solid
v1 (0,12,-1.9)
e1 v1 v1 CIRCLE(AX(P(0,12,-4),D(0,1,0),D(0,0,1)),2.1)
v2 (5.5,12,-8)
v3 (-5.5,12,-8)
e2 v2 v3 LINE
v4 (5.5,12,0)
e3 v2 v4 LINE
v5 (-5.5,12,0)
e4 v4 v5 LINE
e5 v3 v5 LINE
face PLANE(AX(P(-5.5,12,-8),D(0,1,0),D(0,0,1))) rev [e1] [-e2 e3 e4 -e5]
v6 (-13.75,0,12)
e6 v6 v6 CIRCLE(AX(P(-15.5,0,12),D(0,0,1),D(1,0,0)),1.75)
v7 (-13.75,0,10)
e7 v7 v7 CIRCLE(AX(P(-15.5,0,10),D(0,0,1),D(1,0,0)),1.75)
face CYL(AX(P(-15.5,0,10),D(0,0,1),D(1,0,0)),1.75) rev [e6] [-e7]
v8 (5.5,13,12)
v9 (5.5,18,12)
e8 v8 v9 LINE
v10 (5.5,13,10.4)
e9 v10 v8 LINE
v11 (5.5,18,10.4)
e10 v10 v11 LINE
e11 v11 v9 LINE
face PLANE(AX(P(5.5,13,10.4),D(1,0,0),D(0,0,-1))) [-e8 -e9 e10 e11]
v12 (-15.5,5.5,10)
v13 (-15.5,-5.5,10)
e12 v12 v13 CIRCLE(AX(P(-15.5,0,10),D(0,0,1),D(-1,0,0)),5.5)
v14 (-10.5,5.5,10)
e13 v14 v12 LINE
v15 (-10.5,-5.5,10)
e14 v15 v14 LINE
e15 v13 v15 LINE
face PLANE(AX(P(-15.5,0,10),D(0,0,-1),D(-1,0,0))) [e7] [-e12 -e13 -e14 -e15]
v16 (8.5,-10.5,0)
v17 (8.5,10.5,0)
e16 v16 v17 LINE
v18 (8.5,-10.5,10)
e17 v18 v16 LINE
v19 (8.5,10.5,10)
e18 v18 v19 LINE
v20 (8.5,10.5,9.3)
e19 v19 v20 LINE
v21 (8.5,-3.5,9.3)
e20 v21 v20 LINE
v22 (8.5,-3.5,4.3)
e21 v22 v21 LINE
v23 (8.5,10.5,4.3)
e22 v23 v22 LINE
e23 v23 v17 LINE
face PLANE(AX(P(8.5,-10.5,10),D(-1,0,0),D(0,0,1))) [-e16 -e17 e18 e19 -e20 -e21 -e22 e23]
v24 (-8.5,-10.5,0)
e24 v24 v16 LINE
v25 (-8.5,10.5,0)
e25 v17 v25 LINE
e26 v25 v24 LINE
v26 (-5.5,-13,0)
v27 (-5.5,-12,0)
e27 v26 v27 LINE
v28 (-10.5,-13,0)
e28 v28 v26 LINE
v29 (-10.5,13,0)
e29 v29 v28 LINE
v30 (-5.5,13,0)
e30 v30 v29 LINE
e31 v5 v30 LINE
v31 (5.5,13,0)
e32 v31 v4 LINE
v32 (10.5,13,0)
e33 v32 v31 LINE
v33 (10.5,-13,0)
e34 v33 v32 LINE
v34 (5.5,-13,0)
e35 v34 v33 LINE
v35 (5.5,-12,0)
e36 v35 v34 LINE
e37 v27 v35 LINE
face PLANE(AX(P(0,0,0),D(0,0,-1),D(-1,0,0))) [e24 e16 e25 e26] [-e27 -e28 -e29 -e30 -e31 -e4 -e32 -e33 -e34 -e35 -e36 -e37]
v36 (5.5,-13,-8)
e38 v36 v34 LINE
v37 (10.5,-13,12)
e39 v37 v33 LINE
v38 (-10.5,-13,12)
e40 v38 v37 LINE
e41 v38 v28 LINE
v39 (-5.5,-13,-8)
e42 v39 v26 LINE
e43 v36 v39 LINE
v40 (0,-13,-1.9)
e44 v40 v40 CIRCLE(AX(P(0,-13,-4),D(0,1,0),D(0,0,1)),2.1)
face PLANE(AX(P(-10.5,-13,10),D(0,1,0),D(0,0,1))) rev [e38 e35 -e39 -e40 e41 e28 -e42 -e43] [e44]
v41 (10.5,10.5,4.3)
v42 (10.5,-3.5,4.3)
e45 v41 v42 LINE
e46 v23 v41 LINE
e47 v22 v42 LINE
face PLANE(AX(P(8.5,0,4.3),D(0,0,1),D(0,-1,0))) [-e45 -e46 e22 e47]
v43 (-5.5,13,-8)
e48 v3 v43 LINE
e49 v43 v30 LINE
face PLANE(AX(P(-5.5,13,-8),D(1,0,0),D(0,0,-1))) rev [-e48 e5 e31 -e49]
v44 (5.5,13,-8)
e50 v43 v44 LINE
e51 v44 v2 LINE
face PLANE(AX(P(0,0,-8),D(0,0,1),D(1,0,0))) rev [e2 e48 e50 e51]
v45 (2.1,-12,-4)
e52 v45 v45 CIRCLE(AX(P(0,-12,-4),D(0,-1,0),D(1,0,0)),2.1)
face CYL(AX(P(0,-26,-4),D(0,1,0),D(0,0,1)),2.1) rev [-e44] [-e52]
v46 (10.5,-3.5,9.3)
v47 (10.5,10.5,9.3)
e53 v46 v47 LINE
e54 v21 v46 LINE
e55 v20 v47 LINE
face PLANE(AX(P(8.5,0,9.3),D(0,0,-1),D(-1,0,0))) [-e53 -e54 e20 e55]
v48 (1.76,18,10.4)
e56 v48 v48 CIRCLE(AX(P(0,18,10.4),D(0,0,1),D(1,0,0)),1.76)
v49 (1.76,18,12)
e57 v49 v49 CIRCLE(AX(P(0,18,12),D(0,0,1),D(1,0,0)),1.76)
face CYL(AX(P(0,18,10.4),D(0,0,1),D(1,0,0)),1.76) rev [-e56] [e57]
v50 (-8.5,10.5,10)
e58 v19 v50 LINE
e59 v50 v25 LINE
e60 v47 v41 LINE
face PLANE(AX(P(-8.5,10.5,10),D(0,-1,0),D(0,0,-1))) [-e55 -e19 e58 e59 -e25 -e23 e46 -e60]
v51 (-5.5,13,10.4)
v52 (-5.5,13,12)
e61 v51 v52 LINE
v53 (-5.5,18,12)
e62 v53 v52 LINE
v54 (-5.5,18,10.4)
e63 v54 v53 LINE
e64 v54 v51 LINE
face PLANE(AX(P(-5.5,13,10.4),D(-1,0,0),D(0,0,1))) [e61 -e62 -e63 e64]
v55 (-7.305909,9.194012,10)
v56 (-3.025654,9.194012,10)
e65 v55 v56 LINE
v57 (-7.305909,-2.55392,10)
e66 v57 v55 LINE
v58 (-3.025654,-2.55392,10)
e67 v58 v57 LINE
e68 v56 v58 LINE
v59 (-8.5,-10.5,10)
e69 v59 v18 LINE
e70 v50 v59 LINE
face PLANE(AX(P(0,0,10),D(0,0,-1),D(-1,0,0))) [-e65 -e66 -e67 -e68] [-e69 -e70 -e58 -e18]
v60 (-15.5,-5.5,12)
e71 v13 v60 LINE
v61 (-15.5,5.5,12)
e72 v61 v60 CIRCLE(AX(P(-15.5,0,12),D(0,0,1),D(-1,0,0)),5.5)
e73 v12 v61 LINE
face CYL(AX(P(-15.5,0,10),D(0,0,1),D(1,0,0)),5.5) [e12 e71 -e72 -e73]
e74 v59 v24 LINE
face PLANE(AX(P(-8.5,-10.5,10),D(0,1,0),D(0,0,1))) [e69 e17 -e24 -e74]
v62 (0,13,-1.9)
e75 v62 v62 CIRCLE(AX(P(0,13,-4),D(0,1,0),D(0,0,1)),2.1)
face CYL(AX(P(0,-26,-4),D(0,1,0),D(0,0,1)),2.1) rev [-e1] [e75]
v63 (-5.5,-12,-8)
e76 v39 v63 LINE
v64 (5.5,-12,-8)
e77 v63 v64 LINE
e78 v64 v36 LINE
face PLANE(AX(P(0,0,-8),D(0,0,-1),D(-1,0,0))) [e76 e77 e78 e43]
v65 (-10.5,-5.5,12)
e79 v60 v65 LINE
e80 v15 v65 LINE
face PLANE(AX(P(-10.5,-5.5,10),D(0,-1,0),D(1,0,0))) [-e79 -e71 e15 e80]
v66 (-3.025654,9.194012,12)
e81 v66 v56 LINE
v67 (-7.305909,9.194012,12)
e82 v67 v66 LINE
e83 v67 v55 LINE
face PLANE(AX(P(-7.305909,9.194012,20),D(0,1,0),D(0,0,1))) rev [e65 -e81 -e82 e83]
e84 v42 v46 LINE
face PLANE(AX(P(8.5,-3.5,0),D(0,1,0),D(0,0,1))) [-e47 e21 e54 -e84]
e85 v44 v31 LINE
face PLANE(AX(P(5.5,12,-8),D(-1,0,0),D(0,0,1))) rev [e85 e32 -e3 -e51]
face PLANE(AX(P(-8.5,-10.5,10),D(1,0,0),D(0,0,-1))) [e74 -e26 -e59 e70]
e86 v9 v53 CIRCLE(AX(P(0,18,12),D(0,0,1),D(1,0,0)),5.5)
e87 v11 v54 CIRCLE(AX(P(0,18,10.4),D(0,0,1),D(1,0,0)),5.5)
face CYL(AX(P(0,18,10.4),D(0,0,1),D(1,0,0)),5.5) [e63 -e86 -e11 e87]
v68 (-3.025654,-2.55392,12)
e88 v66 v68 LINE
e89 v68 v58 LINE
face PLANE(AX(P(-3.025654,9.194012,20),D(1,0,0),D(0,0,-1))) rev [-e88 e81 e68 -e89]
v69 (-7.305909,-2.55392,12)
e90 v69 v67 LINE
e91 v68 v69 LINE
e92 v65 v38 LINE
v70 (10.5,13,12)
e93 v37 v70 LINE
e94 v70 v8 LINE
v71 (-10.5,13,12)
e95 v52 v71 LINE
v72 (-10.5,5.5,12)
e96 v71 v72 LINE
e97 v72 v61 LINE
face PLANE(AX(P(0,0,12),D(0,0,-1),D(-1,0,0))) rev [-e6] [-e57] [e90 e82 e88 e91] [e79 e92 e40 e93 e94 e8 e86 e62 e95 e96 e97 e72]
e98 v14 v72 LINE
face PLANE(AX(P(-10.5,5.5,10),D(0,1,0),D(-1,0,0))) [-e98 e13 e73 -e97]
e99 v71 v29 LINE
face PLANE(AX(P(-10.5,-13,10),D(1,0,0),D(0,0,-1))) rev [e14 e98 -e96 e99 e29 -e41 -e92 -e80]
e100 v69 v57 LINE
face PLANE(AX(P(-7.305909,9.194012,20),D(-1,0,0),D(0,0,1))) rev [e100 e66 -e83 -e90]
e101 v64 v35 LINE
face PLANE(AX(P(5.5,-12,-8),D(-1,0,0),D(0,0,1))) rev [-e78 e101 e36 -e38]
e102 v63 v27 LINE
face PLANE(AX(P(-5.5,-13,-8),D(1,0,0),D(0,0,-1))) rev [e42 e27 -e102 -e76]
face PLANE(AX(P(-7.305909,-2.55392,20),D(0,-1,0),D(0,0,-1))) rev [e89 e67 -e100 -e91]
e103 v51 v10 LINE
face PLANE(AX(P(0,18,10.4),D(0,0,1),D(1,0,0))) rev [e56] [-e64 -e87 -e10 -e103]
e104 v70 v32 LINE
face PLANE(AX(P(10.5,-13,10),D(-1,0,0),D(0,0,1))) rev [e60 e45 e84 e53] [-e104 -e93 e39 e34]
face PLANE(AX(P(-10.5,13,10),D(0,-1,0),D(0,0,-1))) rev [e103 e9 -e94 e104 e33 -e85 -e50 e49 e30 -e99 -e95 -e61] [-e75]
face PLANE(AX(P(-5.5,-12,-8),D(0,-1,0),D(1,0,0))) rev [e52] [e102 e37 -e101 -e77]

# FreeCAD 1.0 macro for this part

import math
import FreeCAD as App
import Part
import Sketcher

V = App.Vector
Q = App.Units.Quantity


def add_polygon(sketch, points):
    """Adds a closed chain of lines whose ends are joined by coincident constraints."""
    first, n = sketch.GeometryCount, len(points)
    for a, b in zip(points, points[1:] + points[:1]):
        sketch.addGeometry(Part.LineSegment(App.Vector(*a, 0), App.Vector(*b, 0)), False)
    for i in range(n):
        sketch.addConstraint(Sketcher.Constraint("Coincident", first + i, 2, first + (i + 1) % n, 1))

doc = App.newDocument("Part")
body = doc.addObject("PartDesign::Body", "Body")

# Sketch on XY plane
sketch1 = body.newObject("Sketcher::SketchObject", "Sketch")
sketch1.AttachmentSupport = (doc.getObject("XY_Plane"), [""])
sketch1.MapMode = "FlatFace"
add_polygon(sketch1, [(-10, 13), (-10, -13), (10, -13), (10, 13)])  # lines 0-3
add_polygon(sketch1, [(8, -10), (-8, -10), (-8, 10), (8, 10)])  # lines 4-7
sketch1.addConstraint([
    Sketcher.Constraint("Vertical", 0),
    Sketcher.Constraint("Horizontal", 1),
    Sketcher.Constraint("Vertical", 2),
    Sketcher.Constraint("Horizontal", 3),
    Sketcher.Constraint("Horizontal", 4),
    Sketcher.Constraint("Vertical", 5),
    Sketcher.Constraint("Horizontal", 6),
    Sketcher.Constraint("Vertical", 7),
    Sketcher.Constraint("Symmetric", 0, 2, 2, 2, -1, 1),
    Sketcher.Constraint("Symmetric", 4, 2, 6, 2, -1, 1),
    Sketcher.Constraint("Equal", 3, 5),
    Sketcher.Constraint("DistanceX", 1, 1, 1, 2, Q("21 mm")),
    Sketcher.Constraint("DistanceX", 4, 2, 4, 1, Q("17 mm")),
    Sketcher.Constraint("DistanceY", 0, 2, 0, 1, Q("26 mm")),
])
pad1 = body.newObject("PartDesign::Pad", "Pad")
pad1.Profile = sketch1
pad1.Length = 10

# Sketch on XY plane
sketch2 = body.newObject("Sketcher::SketchObject", "Sketch001")
sketch2.AttachmentSupport = (doc.getObject("XY_Plane"), [""])
sketch2.MapMode = "FlatFace"
sketch2.AttachmentOffset = App.Placement(V(0, 0, 10), App.Rotation())
add_polygon(sketch2, [(-10, 13), (-10, -13), (10, -13), (10, 13)])  # lines 0-3
sketch2.addConstraint([
    Sketcher.Constraint("Vertical", 0),
    Sketcher.Constraint("Horizontal", 1),
    Sketcher.Constraint("Vertical", 2),
    Sketcher.Constraint("Horizontal", 3),
    Sketcher.Constraint("Symmetric", 0, 2, 2, 2, -1, 1),
    Sketcher.Constraint("DistanceX", 1, 1, 1, 2, Q("21 mm")),
    Sketcher.Constraint("DistanceY", 0, 2, 0, 1, Q("26 mm")),
])
pad2 = body.newObject("PartDesign::Pad", "Pad001")
pad2.Profile = sketch2
pad2.Length = 2

# Sketch on YZ plane
sketch3 = body.newObject("Sketcher::SketchObject", "Sketch002")
sketch3.AttachmentSupport = (doc.getObject("YZ_Plane"), [""])
sketch3.MapMode = "FlatFace"
sketch3.AttachmentOffset = App.Placement(V(0, 0, 10.5), App.Rotation())
add_polygon(sketch3, [(10, 9), (-4, 9), (-4, 4), (10, 4)])  # lines 0-3
sketch3.addConstraint([
    Sketcher.Constraint("Horizontal", 0),
    Sketcher.Constraint("Vertical", 1),
    Sketcher.Constraint("Horizontal", 2),
    Sketcher.Constraint("Vertical", 3),
    Sketcher.Constraint("DistanceX", 0, 2, 0, 1, Q("14 mm")),
    Sketcher.Constraint("DistanceY", 1, 2, 1, 1, Q("5 mm")),
    Sketcher.Constraint("DistanceX", 0, 2, -1, 1, Q("3.5 mm")),
    Sketcher.Constraint("DistanceY", -1, 1, 0, 2, Q("9.3 mm")),
])
pocket1 = body.newObject("PartDesign::Pocket", "Pocket")
pocket1.Profile = sketch3
pocket1.Length = 2

# Sketch on XY plane
sketch4 = body.newObject("Sketcher::SketchObject", "Sketch003")
sketch4.AttachmentSupport = (doc.getObject("XY_Plane"), [""])
sketch4.MapMode = "FlatFace"
sketch4.AttachmentOffset = App.Placement(V(0, 0, 12), App.Rotation())
sketch4.addGeometry([
    Part.LineSegment(V(5.5, 13, 0), V(5.5, 18, 0)),  # 0
    Part.ArcOfCircle(Part.Circle(V(0, 18, 0), V(0, 0, 1), 5.5), math.radians(0), math.radians(180)),  # 1
    Part.LineSegment(V(-5.5, 18, 0), V(-5.5, 13, 0)),  # 2
    Part.LineSegment(V(-5.5, 13, 0), V(5.5, 13, 0)),  # 3
    Part.Circle(V(0, 18, 0), V(0, 0, 1), 1.8),  # 4
], False)
sketch4.addConstraint([
    Sketcher.Constraint("Tangent", 0, 2, 1, 1),
    Sketcher.Constraint("Tangent", 1, 2, 2, 1),
    Sketcher.Constraint("Coincident", 2, 2, 3, 1),
    Sketcher.Constraint("Coincident", 3, 2, 0, 1),
    Sketcher.Constraint("Vertical", 0),
    Sketcher.Constraint("Vertical", 2),
    Sketcher.Constraint("Horizontal", 3),
    Sketcher.Constraint("Coincident", 4, 3, 1, 3),
    Sketcher.Constraint("PointOnObject", 1, 3, -2),
    Sketcher.Constraint("Radius", 1, Q("5.5 mm")),
    Sketcher.Constraint("Diameter", 4, Q("3.52 mm")),
    Sketcher.Constraint("DistanceY", 0, 1, 0, 2, Q("5 mm")),
    Sketcher.Constraint("DistanceY", -1, 1, 1, 3, Q("18 mm")),
])
pad3 = body.newObject("PartDesign::Pad", "Pad002")
pad3.Profile = sketch4
pad3.Length = 1.6
pad3.Reversed = True

# Sketch on XY plane
sketch5 = body.newObject("Sketcher::SketchObject", "Sketch004")
sketch5.AttachmentSupport = (doc.getObject("XY_Plane"), [""])
sketch5.MapMode = "FlatFace"
sketch5.AttachmentOffset = App.Placement(V(0, 0, 12), App.Rotation())
sketch5.addGeometry([
    Part.LineSegment(V(-5.5, -13, 0), V(-5.5, -18, 0)),  # 0
    Part.ArcOfCircle(Part.Circle(V(0, -18, 0), V(0, 0, 1), 5.5), math.radians(180), math.radians(360)),  # 1
    Part.LineSegment(V(5.5, -18, 0), V(5.5, -13, 0)),  # 2
    Part.LineSegment(V(5.5, -13, 0), V(-5.5, -13, 0)),  # 3
    Part.Circle(V(0, -18, 0), V(0, 0, 1), 1.8),  # 4
], False)
sketch5.addConstraint([
    Sketcher.Constraint("Tangent", 0, 2, 1, 1),
    Sketcher.Constraint("Tangent", 1, 2, 2, 1),
    Sketcher.Constraint("Coincident", 2, 2, 3, 1),
    Sketcher.Constraint("Coincident", 3, 2, 0, 1),
    Sketcher.Constraint("Vertical", 0),
    Sketcher.Constraint("Vertical", 2),
    Sketcher.Constraint("Horizontal", 3),
    Sketcher.Constraint("Coincident", 4, 3, 1, 3),
    Sketcher.Constraint("PointOnObject", 1, 3, -2),
    Sketcher.Constraint("Radius", 1, Q("5.5 mm")),
    Sketcher.Constraint("Diameter", 4, Q("3.52 mm")),
    Sketcher.Constraint("DistanceY", 0, 2, 0, 1, Q("5 mm")),
    Sketcher.Constraint("DistanceY", 1, 3, -1, 1, Q("18 mm")),
])
pad4 = body.newObject("PartDesign::Pad", "Pad003")
pad4.Profile = sketch5
pad4.Length = 2
pad4.Reversed = True

# Sketch on XY plane
sketch6 = body.newObject("Sketcher::SketchObject", "Sketch005")
sketch6.AttachmentSupport = (doc.getObject("XY_Plane"), [""])
sketch6.MapMode = "FlatFace"
add_polygon(sketch6, [(5.5, -12), (5.5, -13), (-5.5, -13), (-5.5, -12)])  # lines 0-3
add_polygon(sketch6, [(5.5, 13), (5.5, 12), (-5.5, 12), (-5.5, 13)])  # lines 4-7
sketch6.addConstraint([
    Sketcher.Constraint("Vertical", 0),
    Sketcher.Constraint("Horizontal", 1),
    Sketcher.Constraint("Vertical", 2),
    Sketcher.Constraint("Horizontal", 3),
    Sketcher.Constraint("Vertical", 4),
    Sketcher.Constraint("Horizontal", 5),
    Sketcher.Constraint("Vertical", 6),
    Sketcher.Constraint("Horizontal", 7),
    Sketcher.Constraint("Symmetric", 2, 2, 4, 2, -1, 1),
    Sketcher.Constraint("Symmetric", 0, 2, 6, 2, -1, 1),
    Sketcher.Constraint("Vertical", 3, 2, 4, 2),
    Sketcher.Constraint("DistanceX", 1, 2, 1, 1, Q("11 mm")),
    Sketcher.Constraint("DistanceY", 0, 2, 0, 1, Q("1 mm")),
    Sketcher.Constraint("DistanceY", 0, 2, -1, 1, Q("13 mm")),
])
pad5 = body.newObject("PartDesign::Pad", "Pad004")
pad5.Profile = sketch6
pad5.Length = 8
pad5.Reversed = True

# Sketch on XZ plane
sketch7 = body.newObject("Sketcher::SketchObject", "Sketch006")
sketch7.AttachmentSupport = (doc.getObject("XZ_Plane"), [""])
sketch7.MapMode = "FlatFace"
sketch7.AttachmentOffset = App.Placement(V(0, 0, -13), App.Rotation())
sketch7.addGeometry(Part.Circle(V(0, -4, 0), V(0, 0, 1), 2.1), False)
sketch7.addConstraint([
    Sketcher.Constraint("PointOnObject", 0, 3, -2),
    Sketcher.Constraint("Diameter", 0, Q("4.2 mm")),
    Sketcher.Constraint("DistanceY", 0, 3, -1, 1, Q("4 mm")),
])
pocket2 = body.newObject("PartDesign::Pocket", "Pocket001")
pocket2.Profile = sketch7
pocket2.Length = 39
pocket2.Reversed = True

# Sketch on XY plane
sketch8 = body.newObject("Sketcher::SketchObject", "Sketch007")
sketch8.AttachmentSupport = (doc.getObject("XY_Plane"), [""])
sketch8.MapMode = "FlatFace"
sketch8.AttachmentOffset = App.Placement(V(0, 0, 10), App.Rotation())
sketch8.addGeometry([
    Part.LineSegment(V(6, -13, 0), V(6, -18, 0)),
    Part.ArcOfCircle(Part.Circle(V(0, -18, 0), V(0, 0, 1), 6), math.radians(180), math.radians(360)),
    Part.LineSegment(V(-6, -18, 0), V(-6, -13, 0)),
    Part.LineSegment(V(-6, -13, 0), V(6, -13, 0)),
], False)
sketch8.addConstraint([
    Sketcher.Constraint("Tangent", 0, 2, 1, 2),
    Sketcher.Constraint("Tangent", 1, 1, 2, 1),
    Sketcher.Constraint("Coincident", 2, 2, 3, 1),
    Sketcher.Constraint("Coincident", 3, 2, 0, 1),
    Sketcher.Constraint("Vertical", 0),
    Sketcher.Constraint("Vertical", 2),
    Sketcher.Constraint("Horizontal", 3),
    Sketcher.Constraint("PointOnObject", 1, 3, -2),
    Sketcher.Constraint("Radius", 1, Q("5.5 mm")),
    Sketcher.Constraint("DistanceY", 0, 2, 0, 1, Q("5 mm")),
    Sketcher.Constraint("DistanceY", 1, 3, -1, 1, Q("18 mm")),
])
pocket3 = body.newObject("PartDesign::Pocket", "Pocket002")
pocket3.Profile = sketch8
pocket3.Length = 10
pocket3.Reversed = True

# Sketch on XY plane
sketch9 = body.newObject("Sketcher::SketchObject", "Sketch008")
sketch9.AttachmentSupport = (doc.getObject("XY_Plane"), [""])
sketch9.MapMode = "FlatFace"
sketch9.AttachmentOffset = App.Placement(V(0, 0, 12), App.Rotation())
sketch9.addGeometry([
    Part.LineSegment(V(-10.5, 5.5, 0), V(-15.5, 5.5, 0)),  # 0
    Part.ArcOfCircle(Part.Circle(V(-15.5, 0, 0), V(0, 0, 1), 5.5), math.radians(90), math.radians(270)),  # 1
    Part.LineSegment(V(-15.5, -5.5, 0), V(-10.5, -5.5, 0)),  # 2
    Part.LineSegment(V(-10.5, -5.5, 0), V(-10.5, 5.5, 0)),  # 3
    Part.Circle(V(-15.5, 0, 0), V(0, 0, 1), 1.8),  # 4
], False)
sketch9.addConstraint([
    Sketcher.Constraint("Tangent", 0, 2, 1, 1),
    Sketcher.Constraint("Tangent", 1, 2, 2, 1),
    Sketcher.Constraint("Coincident", 2, 2, 3, 1),
    Sketcher.Constraint("Coincident", 3, 2, 0, 1),
    Sketcher.Constraint("Horizontal", 0),
    Sketcher.Constraint("Horizontal", 2),
    Sketcher.Constraint("Vertical", 3),
    Sketcher.Constraint("Coincident", 4, 3, 1, 3),
    Sketcher.Constraint("PointOnObject", 1, 3, -1),
    Sketcher.Constraint("Diameter", 4, Q("3.5 mm")),
    Sketcher.Constraint("Radius", 1, Q("5.5 mm")),
    Sketcher.Constraint("DistanceX", 0, 2, 0, 1, Q("5 mm")),
    Sketcher.Constraint("DistanceX", 1, 3, -1, 1, Q("15.5 mm")),
])
pad6 = body.newObject("PartDesign::Pad", "Pad005")
pad6.Profile = sketch9
pad6.Length = 2
pad6.Reversed = True

# Sketch on XY plane
sketch10 = body.newObject("Sketcher::SketchObject", "Sketch009")
sketch10.AttachmentSupport = (doc.getObject("XY_Plane"), [""])
sketch10.MapMode = "FlatFace"
sketch10.AttachmentOffset = App.Placement(V(0, 0, 10), App.Rotation())
add_polygon(sketch10, [(-3, 9.2), (-3, -2.6), (-7.3, -2.6), (-7.3, 9.2)])  # lines 0-3
sketch10.addConstraint([
    Sketcher.Constraint("Vertical", 0),
    Sketcher.Constraint("Horizontal", 1),
    Sketcher.Constraint("Vertical", 2),
    Sketcher.Constraint("Horizontal", 3),
    Sketcher.Constraint("DistanceY", 0, 2, 0, 1, Q("11.747932 mm")),
    Sketcher.Constraint("DistanceX", 1, 2, 1, 1, Q("4.280254 mm")),
    Sketcher.Constraint("DistanceY", 0, 2, -1, 1, Q("2.55392 mm")),
    Sketcher.Constraint("DistanceX", 1, 2, -1, 1, Q("7.305909 mm")),
])
pocket4 = body.newObject("PartDesign::Pocket", "Pocket003")
pocket4.Profile = sketch10
pocket4.Length = 10
pocket4.Reversed = True

doc.recompute()
